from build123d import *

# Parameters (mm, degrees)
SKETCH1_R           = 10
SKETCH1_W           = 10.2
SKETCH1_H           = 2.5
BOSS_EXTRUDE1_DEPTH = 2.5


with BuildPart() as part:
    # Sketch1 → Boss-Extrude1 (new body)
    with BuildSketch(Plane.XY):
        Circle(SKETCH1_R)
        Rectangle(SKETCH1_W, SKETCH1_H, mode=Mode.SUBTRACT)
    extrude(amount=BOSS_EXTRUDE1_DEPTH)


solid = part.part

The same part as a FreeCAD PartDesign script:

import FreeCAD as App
import Part
import Sketcher
Q = App.Units.Quantity


def add_polygon(sketch, points):
    """Adds a closed chain of lines whose ends are joined by coincident constraints."""
    first, n = sketch.GeometryCount, len(points)
    for a, b in zip(points, points[1:] + points[:1]):
        sketch.addGeometry(Part.LineSegment(App.Vector(*a, 0), App.Vector(*b, 0)), False)
    for i in range(n):
        sketch.addConstraint(Sketcher.Constraint("Coincident", first + i, 2, first + (i + 1) % n, 1))

doc = App.newDocument("Part")
body = doc.addObject("PartDesign::Body", "Body")

sketch1 = body.newObject("Sketcher::SketchObject", "Sketch")
sketch1.AttachmentSupport = (doc.getObject("XY_Plane"), [""])
sketch1.MapMode = "FlatFace"
sketch1.addGeometry(Part.Circle(App.Vector(0, 0, 0), App.Vector(0, 0, 1), 10), False)
add_polygon(sketch1, [(5.1, -1.2), (-5.1, -1.2), (-5.1, 1.2), (5.1, 1.2)])
sketch1.addConstraint([
    Sketcher.Constraint("Horizontal", 1),
    Sketcher.Constraint("Vertical", 2),
    Sketcher.Constraint("Horizontal", 3),
    Sketcher.Constraint("Vertical", 4),
    Sketcher.Constraint("Coincident", 0, 3, -1, 1),
    Sketcher.Constraint("Symmetric", 1, 2, 3, 2, -1, 1),
    Sketcher.Constraint("Diameter", 0, Q("20 mm")),
    Sketcher.Constraint("DistanceX", 1, 2, 1, 1, Q("10.2 mm")),
    Sketcher.Constraint("DistanceY", 2, 1, 2, 2, Q("2.5 mm")),
])
pad1 = body.newObject("PartDesign::Pad", "Pad")
pad1.Profile = sketch1
pad1.Length = 2.5

doc.recompute()
